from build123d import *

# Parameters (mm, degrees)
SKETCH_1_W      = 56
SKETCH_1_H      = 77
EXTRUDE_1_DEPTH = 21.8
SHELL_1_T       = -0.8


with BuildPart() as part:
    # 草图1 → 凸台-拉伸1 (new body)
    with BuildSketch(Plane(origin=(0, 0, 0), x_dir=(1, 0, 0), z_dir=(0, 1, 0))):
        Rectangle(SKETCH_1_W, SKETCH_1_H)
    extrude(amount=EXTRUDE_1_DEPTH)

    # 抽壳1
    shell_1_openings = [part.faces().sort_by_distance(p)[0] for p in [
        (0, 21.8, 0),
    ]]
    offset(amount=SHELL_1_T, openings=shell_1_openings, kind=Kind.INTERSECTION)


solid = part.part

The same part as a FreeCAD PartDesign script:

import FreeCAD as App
import Part
import Sketcher
from FreeCAD import Vector
Q = App.Units.Quantity


def faces_at(feature, points):
    """Names of the faces that lie closest to the given points."""
    faces = feature.Shape.Faces
    near = lambda p: min(range(len(faces)), key=lambda i: faces[i].distToShape(Part.Vertex(*p))[0])
    return sorted({f"Face{near(p) + 1}" for p in points})


def add_polygon(sketch, points):
    """Adds a closed chain of lines whose ends are joined by coincident constraints."""
    first, n = sketch.GeometryCount, len(points)
    for a, b in zip(points, points[1:] + points[:1]):
        sketch.addGeometry(Part.LineSegment(App.Vector(*a, 0), App.Vector(*b, 0)), False)
    for i in range(n):
        sketch.addConstraint(Sketcher.Constraint("Coincident", first + i, 2, first + (i + 1) % n, 1))

doc = App.newDocument("Part")
body = doc.addObject("PartDesign::Body", "Body")

# Sketch on XZ plane
sketch1 = body.newObject("Sketcher::SketchObject", "Sketch")
sketch1.AttachmentSupport = (doc.getObject("XZ_Plane"), [""])
sketch1.MapMode = "FlatFace"
add_polygon(sketch1, [(-28, -38), (-28, 38), (28, 38), (28, -38)])  # lines 0-3
sketch1.addConstraint([
    Sketcher.Constraint("Vertical", 0),
    Sketcher.Constraint("Horizontal", 1),
    Sketcher.Constraint("Vertical", 2),
    Sketcher.Constraint("Horizontal", 3),
    Sketcher.Constraint("Symmetric", 0, 2, 2, 2, -1, 1),
    Sketcher.Constraint("DistanceX", 1, 1, 1, 2, Q("56 mm")),
    Sketcher.Constraint("DistanceY", 0, 1, 0, 2, Q("77 mm")),
])
pad1 = body.newObject("PartDesign::Pad", "Pad")
pad1.Profile = sketch1
pad1.Length = 21.8
pad1.Reversed = True
doc.recompute()

thickness = body.newObject("PartDesign::Thickness", "Thickness")
thickness.Base = (pad1, faces_at(pad1, [(0, 21.8, 0)]))
thickness.Value = 0.8
thickness.Reversed = True
thickness.Join = "Intersection"

doc.recompute()
